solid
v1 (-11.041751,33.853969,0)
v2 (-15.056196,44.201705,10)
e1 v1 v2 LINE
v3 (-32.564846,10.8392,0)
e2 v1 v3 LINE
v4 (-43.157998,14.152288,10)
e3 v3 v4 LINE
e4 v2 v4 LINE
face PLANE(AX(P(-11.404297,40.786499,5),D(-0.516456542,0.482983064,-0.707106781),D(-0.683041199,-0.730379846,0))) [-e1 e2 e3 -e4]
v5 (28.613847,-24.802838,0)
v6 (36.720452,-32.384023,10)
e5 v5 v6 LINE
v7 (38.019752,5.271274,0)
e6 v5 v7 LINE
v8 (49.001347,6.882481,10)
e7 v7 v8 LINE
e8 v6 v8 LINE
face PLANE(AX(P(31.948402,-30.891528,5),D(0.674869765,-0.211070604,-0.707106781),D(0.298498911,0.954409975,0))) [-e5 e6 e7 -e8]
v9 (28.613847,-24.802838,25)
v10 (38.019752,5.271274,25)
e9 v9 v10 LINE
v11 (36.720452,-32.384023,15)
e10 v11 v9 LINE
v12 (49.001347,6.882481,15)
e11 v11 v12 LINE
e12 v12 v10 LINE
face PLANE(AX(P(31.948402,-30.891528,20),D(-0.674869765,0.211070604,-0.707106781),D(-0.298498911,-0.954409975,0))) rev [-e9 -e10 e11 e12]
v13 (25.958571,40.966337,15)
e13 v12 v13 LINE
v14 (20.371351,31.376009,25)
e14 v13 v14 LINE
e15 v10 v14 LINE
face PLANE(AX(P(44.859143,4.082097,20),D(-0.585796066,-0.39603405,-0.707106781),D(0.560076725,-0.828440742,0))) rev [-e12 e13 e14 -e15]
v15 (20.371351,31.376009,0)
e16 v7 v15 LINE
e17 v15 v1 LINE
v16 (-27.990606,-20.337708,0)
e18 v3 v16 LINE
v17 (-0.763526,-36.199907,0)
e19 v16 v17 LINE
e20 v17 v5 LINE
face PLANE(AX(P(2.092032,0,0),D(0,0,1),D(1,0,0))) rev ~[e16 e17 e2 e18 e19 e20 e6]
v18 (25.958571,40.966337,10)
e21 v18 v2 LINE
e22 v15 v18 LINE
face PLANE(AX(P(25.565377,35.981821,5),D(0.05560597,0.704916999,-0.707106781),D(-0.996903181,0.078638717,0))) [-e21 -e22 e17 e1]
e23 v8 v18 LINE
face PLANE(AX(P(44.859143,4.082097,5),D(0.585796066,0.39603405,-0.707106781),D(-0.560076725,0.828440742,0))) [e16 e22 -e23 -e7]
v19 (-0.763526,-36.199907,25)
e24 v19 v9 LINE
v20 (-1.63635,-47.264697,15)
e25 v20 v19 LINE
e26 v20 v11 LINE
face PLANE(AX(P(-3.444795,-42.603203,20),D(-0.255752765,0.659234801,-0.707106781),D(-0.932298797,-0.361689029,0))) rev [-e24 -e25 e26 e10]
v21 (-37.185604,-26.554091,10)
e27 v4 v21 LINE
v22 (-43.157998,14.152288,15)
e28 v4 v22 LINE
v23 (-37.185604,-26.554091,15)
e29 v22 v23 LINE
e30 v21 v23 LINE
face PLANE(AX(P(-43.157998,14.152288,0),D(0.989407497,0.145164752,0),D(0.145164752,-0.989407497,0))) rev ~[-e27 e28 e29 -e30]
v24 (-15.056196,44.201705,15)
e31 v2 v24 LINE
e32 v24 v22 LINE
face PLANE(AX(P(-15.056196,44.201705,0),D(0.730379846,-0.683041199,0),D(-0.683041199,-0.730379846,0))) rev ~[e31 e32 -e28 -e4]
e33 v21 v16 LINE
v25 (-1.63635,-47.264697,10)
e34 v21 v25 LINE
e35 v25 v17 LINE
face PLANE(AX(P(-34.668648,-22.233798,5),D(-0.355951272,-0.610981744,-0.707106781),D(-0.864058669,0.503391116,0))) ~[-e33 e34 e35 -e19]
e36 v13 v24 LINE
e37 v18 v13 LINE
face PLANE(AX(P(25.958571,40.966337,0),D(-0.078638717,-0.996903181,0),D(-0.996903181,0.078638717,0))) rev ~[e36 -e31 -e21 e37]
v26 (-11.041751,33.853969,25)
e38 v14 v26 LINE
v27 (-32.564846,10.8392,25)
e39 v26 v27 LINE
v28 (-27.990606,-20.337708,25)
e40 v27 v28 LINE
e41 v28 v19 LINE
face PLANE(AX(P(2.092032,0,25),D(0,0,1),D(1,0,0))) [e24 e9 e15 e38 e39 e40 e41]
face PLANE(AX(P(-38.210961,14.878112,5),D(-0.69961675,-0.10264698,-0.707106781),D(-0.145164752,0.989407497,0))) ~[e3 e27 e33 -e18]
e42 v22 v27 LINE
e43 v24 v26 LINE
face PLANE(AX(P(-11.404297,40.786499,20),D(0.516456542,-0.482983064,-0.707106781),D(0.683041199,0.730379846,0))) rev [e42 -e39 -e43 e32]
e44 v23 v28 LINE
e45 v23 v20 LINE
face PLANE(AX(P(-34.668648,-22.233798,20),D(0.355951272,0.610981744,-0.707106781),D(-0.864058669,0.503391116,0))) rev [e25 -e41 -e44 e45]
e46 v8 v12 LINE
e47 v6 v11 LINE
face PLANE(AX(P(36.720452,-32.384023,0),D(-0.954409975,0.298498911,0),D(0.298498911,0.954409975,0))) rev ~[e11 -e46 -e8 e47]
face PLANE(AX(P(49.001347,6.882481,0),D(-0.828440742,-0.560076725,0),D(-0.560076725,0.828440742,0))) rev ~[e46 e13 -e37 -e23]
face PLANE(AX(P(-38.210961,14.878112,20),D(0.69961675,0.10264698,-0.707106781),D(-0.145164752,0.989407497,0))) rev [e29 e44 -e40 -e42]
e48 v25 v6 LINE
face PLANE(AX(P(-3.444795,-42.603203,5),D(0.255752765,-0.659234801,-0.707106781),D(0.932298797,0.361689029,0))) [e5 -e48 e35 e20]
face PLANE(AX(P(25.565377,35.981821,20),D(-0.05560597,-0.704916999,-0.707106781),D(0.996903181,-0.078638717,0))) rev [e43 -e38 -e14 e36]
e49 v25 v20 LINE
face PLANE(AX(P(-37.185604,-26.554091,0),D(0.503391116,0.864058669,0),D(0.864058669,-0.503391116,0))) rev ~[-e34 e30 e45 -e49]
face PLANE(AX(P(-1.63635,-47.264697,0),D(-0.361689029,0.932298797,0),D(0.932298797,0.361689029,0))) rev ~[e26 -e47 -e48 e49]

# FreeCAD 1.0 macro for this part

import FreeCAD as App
import Part
import Sketcher
from FreeCAD import Vector
Q = App.Units.Quantity


def edges_at(feature, points):
    """Names of the edges that pass closest to the given points."""
    edges = feature.Shape.Edges
    near = lambda p: min(range(len(edges)), key=lambda i: edges[i].distToShape(Part.Vertex(*p))[0])
    return sorted({f"Edge{near(p) + 1}" for p in points})

doc = App.newDocument("Part")
body = doc.addObject("PartDesign::Body", "Body")

# Sketch on XY plane
sketch1 = body.newObject("Sketcher::SketchObject", "Sketch")
sketch1.AttachmentSupport = (doc.getObject("XY_Plane"), [""])
sketch1.MapMode = "FlatFace"
sketch1.addGeometry(Part.LineSegment(Vector(-37, -27, 0), Vector(-2, -47, 0)), False)
sketch1.addGeometry(Part.LineSegment(Vector(-2, -47, 0), Vector(37, -32, 0)), False)
sketch1.addGeometry(Part.LineSegment(Vector(37, -32, 0), Vector(49, 7, 0)), False)
sketch1.addGeometry(Part.LineSegment(Vector(49, 7, 0), Vector(26, 41, 0)), False)
sketch1.addGeometry(Part.LineSegment(Vector(26, 41, 0), Vector(-15, 44, 0)), False)
sketch1.addGeometry(Part.LineSegment(Vector(-15, 44, 0), Vector(-43, 14, 0)), False)
sketch1.addGeometry(Part.LineSegment(Vector(-43, 14, 0), Vector(-37, -27, 0)), False)
sketch1.addConstraint(Sketcher.Constraint("Coincident", 0, 2, 1, 1))
sketch1.addConstraint(Sketcher.Constraint("Coincident", 1, 2, 2, 1))
sketch1.addConstraint(Sketcher.Constraint("Coincident", 2, 2, 3, 1))
sketch1.addConstraint(Sketcher.Constraint("Coincident", 3, 2, 4, 1))
sketch1.addConstraint(Sketcher.Constraint("Coincident", 4, 2, 5, 1))
sketch1.addConstraint(Sketcher.Constraint("Coincident", 5, 2, 6, 1))
sketch1.addConstraint(Sketcher.Constraint("Coincident", 6, 2, 0, 1))
sketch1.addConstraint(Sketcher.Constraint("Equal", 0, 1))
sketch1.addConstraint(Sketcher.Constraint("Equal", 1, 2))
sketch1.addConstraint(Sketcher.Constraint("Equal", 2, 3))
sketch1.addConstraint(Sketcher.Constraint("Equal", 3, 4))
sketch1.addConstraint(Sketcher.Constraint("Equal", 4, 5))
sketch1.addConstraint(Sketcher.Constraint("Equal", 5, 6))
sketch1.addConstraint(Sketcher.Constraint("DistanceY", 0, 2, 4, 2, Q("91.466402 mm")))
sketch1.addConstraint(Sketcher.Constraint("DistanceX", 5, 2, 4, 2, Q("28.101802 mm")))
sketch1.addConstraint(Sketcher.Constraint("DistanceX", 0, 2, -1, 1, Q("1.63635 mm")))
sketch1.addConstraint(Sketcher.Constraint("DistanceY", -1, 1, 2, 2, Q("6.882481 mm")))
sketch1.addConstraint(Sketcher.Constraint("DistanceX", -1, 1, 3, 2, Q("25.958571 mm")))
sketch1.addConstraint(Sketcher.Constraint("DistanceY", 6, 2, -1, 1, Q("26.554091 mm")))
sketch1.addConstraint(Sketcher.Constraint("DistanceX", 3, 2, 1, 2, Q("10.761881 mm")))
sketch1.addConstraint(Sketcher.Constraint("DistanceY", 1, 2, 3, 2, Q("73.35036 mm")))
pad1 = body.newObject("PartDesign::Pad", "Pad")
pad1.Profile = sketch1
pad1.Length = 25
doc.recompute()

chamfer = body.newObject("PartDesign::Chamfer", "Chamfer")
chamfer.Base = (pad1, edges_at(pad1, [
    (-19.411, -36.909, 25),
    (5.451, 42.584, 25),
    (-29.107, 29.177, 25),
    (-40.172, -6.201, 25),
    (17.542, -39.824, 25),
    (42.861, -12.751, 25),
    (37.48, 23.924, 25),
]))
chamfer.Size = 10
doc.recompute()

chamfer2 = body.newObject("PartDesign::Chamfer", "Chamfer001")
chamfer2.Base = (chamfer, edges_at(chamfer, [
    (-29.107, 29.177, 0),
    (5.451, 42.584, 0),
    (-40.172, -6.201, 0),
    (-19.411, -36.909, 0),
    (17.542, -39.824, 0),
    (42.861, -12.751, 0),
    (37.48, 23.924, 0),
]))
chamfer2.Size = 10

doc.recompute()
